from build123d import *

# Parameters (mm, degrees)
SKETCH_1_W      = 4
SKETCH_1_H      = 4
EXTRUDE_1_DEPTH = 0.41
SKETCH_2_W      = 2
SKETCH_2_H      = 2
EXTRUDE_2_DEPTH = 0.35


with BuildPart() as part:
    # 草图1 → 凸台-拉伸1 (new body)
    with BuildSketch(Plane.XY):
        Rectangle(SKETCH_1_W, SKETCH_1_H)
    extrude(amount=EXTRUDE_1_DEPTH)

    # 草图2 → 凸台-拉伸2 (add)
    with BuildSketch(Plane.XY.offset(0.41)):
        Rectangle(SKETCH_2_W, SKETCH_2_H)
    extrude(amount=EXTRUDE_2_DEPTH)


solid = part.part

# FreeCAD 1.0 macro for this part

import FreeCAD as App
import Part
import Sketcher
from FreeCAD import Vector

doc = App.newDocument("Part")
body = doc.addObject("PartDesign::Body", "Body")

sketch1 = body.newObject("Sketcher::SketchObject", "Sketch")
sketch1.AttachmentSupport = (doc.getObject("XY_Plane"), [""])
sketch1.MapMode = "FlatFace"
sketch1.addGeometry([
    Part.LineSegment(Vector(-2, 2, 0), Vector(-2, -2, 0)),
    Part.LineSegment(Vector(-2, -2, 0), Vector(2, -2, 0)),
    Part.LineSegment(Vector(2, -2, 0), Vector(2, 2, 0)),
    Part.LineSegment(Vector(2, 2, 0), Vector(-2, 2, 0)),
], False)
sketch1.addConstraint([
    Sketcher.Constraint("Coincident", 0, 2, 1, 1),
    Sketcher.Constraint("Coincident", 1, 2, 2, 1),
    Sketcher.Constraint("Coincident", 2, 2, 3, 1),
    Sketcher.Constraint("Coincident", 3, 2, 0, 1),
    Sketcher.Constraint("Vertical", 0),
    Sketcher.Constraint("Horizontal", 1),
    Sketcher.Constraint("Vertical", 2),
    Sketcher.Constraint("Horizontal", 3),
    Sketcher.Constraint("Symmetric", 0, 2, 2, 2, -1, 1),
    Sketcher.Constraint("Equal", 3, 0),
    Sketcher.Constraint("DistanceX", 1, 1, 1, 2, 4.0),
])
pad1 = body.newObject("PartDesign::Pad", "Pad")
pad1.Profile = sketch1
pad1.Length = 0.41

sketch2 = body.newObject("Sketcher::SketchObject", "Sketch001")
sketch2.AttachmentSupport = (doc.getObject("XY_Plane"), [""])
sketch2.MapMode = "FlatFace"
sketch2.AttachmentOffset = App.Placement(Vector(0, 0, 0.41), App.Rotation())
sketch2.addGeometry([
    Part.LineSegment(Vector(-1, 1, 0), Vector(-1, -1, 0)),
    Part.LineSegment(Vector(-1, -1, 0), Vector(1, -1, 0)),
    Part.LineSegment(Vector(1, -1, 0), Vector(1, 1, 0)),
    Part.LineSegment(Vector(1, 1, 0), Vector(-1, 1, 0)),
], False)
sketch2.addConstraint([
    Sketcher.Constraint("Coincident", 0, 2, 1, 1),
    Sketcher.Constraint("Coincident", 1, 2, 2, 1),
    Sketcher.Constraint("Coincident", 2, 2, 3, 1),
    Sketcher.Constraint("Coincident", 3, 2, 0, 1),
    Sketcher.Constraint("Vertical", 0),
    Sketcher.Constraint("Horizontal", 1),
    Sketcher.Constraint("Vertical", 2),
    Sketcher.Constraint("Horizontal", 3),
    Sketcher.Constraint("Symmetric", 0, 2, 2, 2, -1, 1),
    Sketcher.Constraint("Equal", 3, 0),
    Sketcher.Constraint("DistanceX", 1, 1, 1, 2, 2.0),
])
pad2 = body.newObject("PartDesign::Pad", "Pad001")
pad2.Profile = sketch2
pad2.Length = 0.35

doc.recompute()
